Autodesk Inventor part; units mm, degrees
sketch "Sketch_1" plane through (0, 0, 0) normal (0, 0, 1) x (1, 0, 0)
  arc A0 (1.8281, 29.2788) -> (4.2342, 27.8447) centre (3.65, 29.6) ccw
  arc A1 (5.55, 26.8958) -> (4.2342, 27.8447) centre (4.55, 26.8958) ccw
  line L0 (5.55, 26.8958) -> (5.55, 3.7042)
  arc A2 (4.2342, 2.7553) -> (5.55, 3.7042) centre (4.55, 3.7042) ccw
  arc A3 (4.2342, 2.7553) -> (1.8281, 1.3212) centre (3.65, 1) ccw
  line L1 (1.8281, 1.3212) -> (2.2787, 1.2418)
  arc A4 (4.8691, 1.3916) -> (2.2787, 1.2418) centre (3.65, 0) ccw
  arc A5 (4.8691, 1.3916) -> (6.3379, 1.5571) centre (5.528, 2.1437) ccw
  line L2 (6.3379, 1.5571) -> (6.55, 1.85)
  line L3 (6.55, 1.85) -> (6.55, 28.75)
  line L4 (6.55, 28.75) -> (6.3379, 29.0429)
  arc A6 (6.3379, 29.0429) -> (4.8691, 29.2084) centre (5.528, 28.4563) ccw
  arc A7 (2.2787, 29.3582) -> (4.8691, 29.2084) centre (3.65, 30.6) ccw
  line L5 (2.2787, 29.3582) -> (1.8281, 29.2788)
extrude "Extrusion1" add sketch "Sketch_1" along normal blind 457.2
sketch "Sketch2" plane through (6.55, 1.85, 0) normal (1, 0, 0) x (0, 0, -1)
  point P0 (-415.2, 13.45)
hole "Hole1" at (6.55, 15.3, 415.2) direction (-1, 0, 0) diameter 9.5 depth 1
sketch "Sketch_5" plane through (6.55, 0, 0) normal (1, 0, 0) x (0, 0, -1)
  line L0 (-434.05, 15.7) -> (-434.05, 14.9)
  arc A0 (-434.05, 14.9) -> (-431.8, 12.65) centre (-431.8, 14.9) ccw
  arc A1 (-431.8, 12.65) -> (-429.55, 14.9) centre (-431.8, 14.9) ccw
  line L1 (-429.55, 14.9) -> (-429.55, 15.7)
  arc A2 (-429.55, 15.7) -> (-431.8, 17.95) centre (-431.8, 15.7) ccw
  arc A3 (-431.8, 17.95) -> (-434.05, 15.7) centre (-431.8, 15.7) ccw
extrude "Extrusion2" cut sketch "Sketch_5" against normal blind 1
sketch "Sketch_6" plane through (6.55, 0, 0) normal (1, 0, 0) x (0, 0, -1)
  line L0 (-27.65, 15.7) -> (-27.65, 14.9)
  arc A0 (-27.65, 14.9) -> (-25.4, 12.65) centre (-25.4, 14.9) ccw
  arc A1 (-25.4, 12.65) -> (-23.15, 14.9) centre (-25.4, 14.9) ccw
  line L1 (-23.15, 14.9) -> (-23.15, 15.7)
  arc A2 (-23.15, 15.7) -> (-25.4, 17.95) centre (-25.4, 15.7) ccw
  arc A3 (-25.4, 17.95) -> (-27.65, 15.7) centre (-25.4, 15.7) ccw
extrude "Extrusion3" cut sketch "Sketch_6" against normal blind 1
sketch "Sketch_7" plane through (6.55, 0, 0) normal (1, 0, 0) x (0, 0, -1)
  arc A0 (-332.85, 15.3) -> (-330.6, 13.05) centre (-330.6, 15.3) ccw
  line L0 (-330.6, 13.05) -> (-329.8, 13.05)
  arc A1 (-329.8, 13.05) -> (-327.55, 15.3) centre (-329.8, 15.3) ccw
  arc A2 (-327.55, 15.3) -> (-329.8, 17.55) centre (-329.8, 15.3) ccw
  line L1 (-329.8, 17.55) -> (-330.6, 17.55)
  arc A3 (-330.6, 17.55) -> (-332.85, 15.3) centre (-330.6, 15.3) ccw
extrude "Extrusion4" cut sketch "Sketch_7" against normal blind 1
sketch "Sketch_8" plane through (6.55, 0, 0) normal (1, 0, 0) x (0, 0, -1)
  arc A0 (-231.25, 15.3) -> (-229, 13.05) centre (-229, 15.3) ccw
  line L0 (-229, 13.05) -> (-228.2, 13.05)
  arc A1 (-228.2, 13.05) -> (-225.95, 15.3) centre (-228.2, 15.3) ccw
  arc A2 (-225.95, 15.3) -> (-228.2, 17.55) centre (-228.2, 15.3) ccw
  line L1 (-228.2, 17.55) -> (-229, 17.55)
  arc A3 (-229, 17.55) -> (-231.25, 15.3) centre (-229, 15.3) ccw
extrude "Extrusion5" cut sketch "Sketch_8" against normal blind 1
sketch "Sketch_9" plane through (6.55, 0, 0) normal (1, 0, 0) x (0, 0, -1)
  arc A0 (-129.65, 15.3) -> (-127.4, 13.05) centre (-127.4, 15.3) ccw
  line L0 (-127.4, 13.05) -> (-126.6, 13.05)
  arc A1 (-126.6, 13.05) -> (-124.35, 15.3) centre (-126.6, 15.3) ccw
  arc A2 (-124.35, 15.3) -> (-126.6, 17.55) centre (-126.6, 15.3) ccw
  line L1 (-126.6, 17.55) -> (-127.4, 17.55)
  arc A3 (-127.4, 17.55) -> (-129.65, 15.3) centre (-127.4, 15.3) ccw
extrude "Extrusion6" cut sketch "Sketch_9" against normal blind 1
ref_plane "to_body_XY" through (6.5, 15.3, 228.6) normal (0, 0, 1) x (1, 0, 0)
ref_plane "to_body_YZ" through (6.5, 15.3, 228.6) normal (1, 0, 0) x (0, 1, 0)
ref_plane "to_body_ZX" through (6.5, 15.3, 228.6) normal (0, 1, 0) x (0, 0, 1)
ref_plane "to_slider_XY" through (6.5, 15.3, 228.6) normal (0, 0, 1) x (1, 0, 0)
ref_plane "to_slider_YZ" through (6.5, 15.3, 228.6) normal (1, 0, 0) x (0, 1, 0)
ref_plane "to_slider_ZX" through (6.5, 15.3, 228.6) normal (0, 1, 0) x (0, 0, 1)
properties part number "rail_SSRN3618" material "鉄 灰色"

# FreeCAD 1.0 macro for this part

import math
import FreeCAD as App
import Part
import Sketcher

V = App.Vector
Q = App.Units.Quantity

doc = App.newDocument("Part")
body = doc.addObject("PartDesign::Body", "Body")

sketch1 = body.newObject("Sketcher::SketchObject", "Sketch")
sketch1.AttachmentSupport = (doc.getObject("XY_Plane"), [""])
sketch1.MapMode = "FlatFace"
sketch1.addGeometry([
    Part.LineSegment(V(2.28, 29.36, 0), V(1.83, 29.28, 0)),
    Part.ArcOfCircle(Part.Circle(V(3.65, 29.6, 0), V(0, 0, 1), 1.85), math.radians(-170), math.radians(-72)),
    Part.ArcOfCircle(Part.Circle(V(4.55, 26.9, 0), V(0, 0, 1), 1), math.radians(0), math.radians(108)),
    Part.LineSegment(V(5.55, 26.9, 0), V(5.55, 3.7, 0)),
    Part.ArcOfCircle(Part.Circle(V(4.55, 3.7, 0), V(0, 0, 1), 1), math.radians(-108), math.radians(0)),
    Part.ArcOfCircle(Part.Circle(V(3.65, 1, 0), V(0, 0, 1), 1.85), math.radians(72), math.radians(170)),
    Part.LineSegment(V(1.83, 1.32, 0), V(2.28, 1.24, 0)),
    Part.ArcOfCircle(Part.Circle(V(3.65, 0, 0), V(0, 0, 1), 1.85), math.radians(49), math.radians(138)),
    Part.ArcOfCircle(Part.Circle(V(5.53, 2.14, 0), V(0, 0, 1), 1), math.radians(-131), math.radians(-36)),
    Part.LineSegment(V(6.34, 1.56, 0), V(6.55, 1.85, 0)),
    Part.LineSegment(V(6.55, 1.85, 0), V(6.55, 28.75, 0)),
    Part.LineSegment(V(6.55, 28.75, 0), V(6.34, 29.04, 0)),
    Part.ArcOfCircle(Part.Circle(V(5.53, 28.46, 0), V(0, 0, 1), 1), math.radians(36), math.radians(131)),
    Part.ArcOfCircle(Part.Circle(V(3.65, 30.6, 0), V(0, 0, 1), 1.85), math.radians(-138), math.radians(-49)),
], False)
sketch1.addConstraint([
    Sketcher.Constraint("Coincident", 0, 2, 1, 1),
    Sketcher.Constraint("Tangent", 1, 2, 2, 2),
    Sketcher.Constraint("Tangent", 2, 1, 3, 1),
    Sketcher.Constraint("Tangent", 3, 2, 4, 2),
    Sketcher.Constraint("Tangent", 4, 1, 5, 1),
    Sketcher.Constraint("Coincident", 5, 2, 6, 1),
    Sketcher.Constraint("Coincident", 6, 2, 7, 2),
    Sketcher.Constraint("Tangent", 7, 1, 8, 1),
    Sketcher.Constraint("Tangent", 8, 2, 9, 1),
    Sketcher.Constraint("Coincident", 9, 2, 10, 1),
    Sketcher.Constraint("Coincident", 10, 2, 11, 1),
    Sketcher.Constraint("Tangent", 11, 2, 12, 1),
    Sketcher.Constraint("Tangent", 12, 2, 13, 2),
    Sketcher.Constraint("Coincident", 13, 1, 0, 1),
    Sketcher.Constraint("Vertical", 3),
    Sketcher.Constraint("Vertical", 10),
    Sketcher.Constraint("Equal", 2, 4),
    Sketcher.Constraint("Equal", 1, 5),
    Sketcher.Constraint("Equal", 5, 7),
    Sketcher.Constraint("Equal", 4, 8),
    Sketcher.Constraint("Equal", 8, 12),
    Sketcher.Constraint("Equal", 7, 13),
    Sketcher.Constraint("PointOnObject", 7, 3, -1),
    Sketcher.Constraint("Vertical", 1, 3, 5, 3),
    Sketcher.Constraint("Vertical", 5, 3, 7, 3),
    Sketcher.Constraint("Vertical", 8, 3, 12, 3),
    Sketcher.Constraint("Vertical", 7, 3, 13, 3),
    Sketcher.Constraint("Vertical", 0, 2, 5, 2),
    Sketcher.Constraint("Vertical", 8, 2, 11, 2),
    Sketcher.Constraint("Vertical", 6, 2, 13, 1),
    Sketcher.Constraint("Equal", 0, 6),
    Sketcher.Constraint("Radius", 2, 1.0),
    Sketcher.Constraint("Radius", 1, 1.85),
    Sketcher.Constraint("DistanceY", 10, 1, 10, 2, 26.9),
    Sketcher.Constraint("DistanceY", -1, 1, 5, 3, 1.0),
    Sketcher.Constraint("DistanceX", 3, 2, 9, 2, 1.0),
    Sketcher.Constraint("DistanceY", -1, 1, 1, 3, 29.6),
    Sketcher.Constraint("Angle", 9, Q("54.0903 deg")),
    Sketcher.Constraint("DistanceX", 1, 3, 2, 3, 0.9),
    Sketcher.Constraint("DistanceX", 0, 2, 12, 3, 3.7),
    Sketcher.Constraint("DistanceX", -1, 1, 1, 3, 3.65),
    Sketcher.Constraint("Distance", 0, 0.4575),
])
pad1 = body.newObject("PartDesign::Pad", "Pad")
pad1.Profile = sketch1
pad1.Length = 457.2

sketch2 = body.newObject("Sketcher::SketchObject", "Sketch001")
sketch2.AttachmentSupport = (doc.getObject("YZ_Plane"), [""])
sketch2.MapMode = "FlatFace"
sketch2.AttachmentOffset = App.Placement(V(0, 0, 6.55), App.Rotation())
sketch2.addGeometry(Part.Circle(V(15.3, 415.2, 0), V(0, 0, 1), 4.8), False)
sketch2.addConstraint([
    Sketcher.Constraint("Diameter", 0, 9.5),
    Sketcher.Constraint("DistanceX", -1, 1, 0, 3, 15.3),
    Sketcher.Constraint("DistanceY", -1, 1, 0, 3, 415.2),
])
doc.recompute()
hole = body.newObject("PartDesign::Hole", "Hole")
hole.Profile = sketch2
hole.ThreadType = "None"
hole.Diameter = 9.5
hole.DepthType = "Dimension"
hole.Depth = 1
hole.DrillPoint = "Flat"

sketch3 = body.newObject("Sketcher::SketchObject", "Sketch002")
sketch3.AttachmentSupport = (doc.getObject("YZ_Plane"), [""])
sketch3.MapMode = "FlatFace"
sketch3.AttachmentOffset = App.Placement(V(0, 0, 6.55), App.Rotation())
sketch3.addGeometry([
    Part.ArcOfCircle(Part.Circle(V(15.7, 431.8, 0), V(0, 0, 1), 2.2), math.radians(-90), math.radians(90)),
    Part.LineSegment(V(15.7, 434.1, 0), V(14.9, 434.1, 0)),
    Part.ArcOfCircle(Part.Circle(V(14.9, 431.8, 0), V(0, 0, 1), 2.2), math.radians(90), math.radians(270)),
    Part.LineSegment(V(14.9, 429.6, 0), V(15.7, 429.6, 0)),
], False)
sketch3.addConstraint([
    Sketcher.Constraint("Tangent", 0, 2, 1, 1),
    Sketcher.Constraint("Tangent", 1, 2, 2, 1),
    Sketcher.Constraint("Tangent", 2, 2, 3, 1),
    Sketcher.Constraint("Tangent", 3, 2, 0, 1),
    Sketcher.Constraint("Horizontal", 1),
    Sketcher.Constraint("Horizontal", 3),
    Sketcher.Constraint("Radius", 0, 2.25),
    Sketcher.Constraint("DistanceX", 1, 2, 1, 1, 0.8),
    Sketcher.Constraint("DistanceX", -1, 1, 0, 3, 15.7),
    Sketcher.Constraint("DistanceY", -1, 1, 0, 3, 431.8),
])
pocket1 = body.newObject("PartDesign::Pocket", "Pocket")
pocket1.Profile = sketch3
pocket1.Length = 1

sketch4 = body.newObject("Sketcher::SketchObject", "Sketch003")
sketch4.AttachmentSupport = (doc.getObject("YZ_Plane"), [""])
sketch4.MapMode = "FlatFace"
sketch4.AttachmentOffset = App.Placement(V(0, 0, 6.55), App.Rotation())
sketch4.addGeometry([
    Part.ArcOfCircle(Part.Circle(V(15.7, 25.4, 0), V(0, 0, 1), 2.2), math.radians(-90), math.radians(90)),
    Part.LineSegment(V(15.7, 27.6, 0), V(14.9, 27.6, 0)),
    Part.ArcOfCircle(Part.Circle(V(14.9, 25.4, 0), V(0, 0, 1), 2.2), math.radians(90), math.radians(270)),
    Part.LineSegment(V(14.9, 23.1, 0), V(15.7, 23.1, 0)),
], False)
sketch4.addConstraint([
    Sketcher.Constraint("Tangent", 0, 2, 1, 1),
    Sketcher.Constraint("Tangent", 1, 2, 2, 1),
    Sketcher.Constraint("Tangent", 2, 2, 3, 1),
    Sketcher.Constraint("Tangent", 3, 2, 0, 1),
    Sketcher.Constraint("Horizontal", 1),
    Sketcher.Constraint("Horizontal", 3),
    Sketcher.Constraint("Radius", 0, 2.25),
    Sketcher.Constraint("DistanceX", 1, 2, 1, 1, 0.8),
    Sketcher.Constraint("DistanceX", -1, 1, 0, 3, 15.7),
    Sketcher.Constraint("DistanceY", -1, 1, 0, 3, 25.4),
])
pocket2 = body.newObject("PartDesign::Pocket", "Pocket001")
pocket2.Profile = sketch4
pocket2.Length = 1

sketch5 = body.newObject("Sketcher::SketchObject", "Sketch004")
sketch5.AttachmentSupport = (doc.getObject("YZ_Plane"), [""])
sketch5.MapMode = "FlatFace"
sketch5.AttachmentOffset = App.Placement(V(0, 0, 6.55), App.Rotation())
sketch5.addGeometry([
    Part.ArcOfCircle(Part.Circle(V(15.3, 330.6, 0), V(0, 0, 1), 2.2), math.radians(0), math.radians(180)),
    Part.LineSegment(V(13.1, 330.6, 0), V(13.1, 329.8, 0)),
    Part.ArcOfCircle(Part.Circle(V(15.3, 329.8, 0), V(0, 0, 1), 2.2), math.radians(180), math.radians(360)),
    Part.LineSegment(V(17.6, 329.8, 0), V(17.6, 330.6, 0)),
], False)
sketch5.addConstraint([
    Sketcher.Constraint("Tangent", 0, 2, 1, 1),
    Sketcher.Constraint("Tangent", 1, 2, 2, 1),
    Sketcher.Constraint("Tangent", 2, 2, 3, 1),
    Sketcher.Constraint("Tangent", 3, 2, 0, 1),
    Sketcher.Constraint("Vertical", 1),
    Sketcher.Constraint("Vertical", 3),
    Sketcher.Constraint("Radius", 0, 2.25),
    Sketcher.Constraint("DistanceY", 1, 2, 1, 1, 0.8),
    Sketcher.Constraint("DistanceX", -1, 1, 0, 3, 15.3),
    Sketcher.Constraint("DistanceY", -1, 1, 0, 3, 330.6),
])
pocket3 = body.newObject("PartDesign::Pocket", "Pocket002")
pocket3.Profile = sketch5
pocket3.Length = 1

sketch6 = body.newObject("Sketcher::SketchObject", "Sketch005")
sketch6.AttachmentSupport = (doc.getObject("YZ_Plane"), [""])
sketch6.MapMode = "FlatFace"
sketch6.AttachmentOffset = App.Placement(V(0, 0, 6.55), App.Rotation())
sketch6.addGeometry([
    Part.ArcOfCircle(Part.Circle(V(15.3, 229, 0), V(0, 0, 1), 2.2), math.radians(0), math.radians(180)),
    Part.LineSegment(V(13.1, 229, 0), V(13.1, 228.2, 0)),
    Part.ArcOfCircle(Part.Circle(V(15.3, 228.2, 0), V(0, 0, 1), 2.2), math.radians(180), math.radians(360)),
    Part.LineSegment(V(17.6, 228.2, 0), V(17.6, 229, 0)),
], False)
sketch6.addConstraint([
    Sketcher.Constraint("Tangent", 0, 2, 1, 1),
    Sketcher.Constraint("Tangent", 1, 2, 2, 1),
    Sketcher.Constraint("Tangent", 2, 2, 3, 1),
    Sketcher.Constraint("Tangent", 3, 2, 0, 1),
    Sketcher.Constraint("Vertical", 1),
    Sketcher.Constraint("Vertical", 3),
    Sketcher.Constraint("Radius", 0, 2.25),
    Sketcher.Constraint("DistanceY", 1, 2, 1, 1, 0.8),
    Sketcher.Constraint("DistanceY", -1, 1, 0, 3, 229.0),
    Sketcher.Constraint("DistanceX", -1, 1, 0, 3, 15.3),
])
pocket4 = body.newObject("PartDesign::Pocket", "Pocket003")
pocket4.Profile = sketch6
pocket4.Length = 1

sketch7 = body.newObject("Sketcher::SketchObject", "Sketch006")
sketch7.AttachmentSupport = (doc.getObject("YZ_Plane"), [""])
sketch7.MapMode = "FlatFace"
sketch7.AttachmentOffset = App.Placement(V(0, 0, 6.55), App.Rotation())
sketch7.addGeometry([
    Part.ArcOfCircle(Part.Circle(V(15.3, 127.4, 0), V(0, 0, 1), 2.2), math.radians(0), math.radians(180)),
    Part.LineSegment(V(13.1, 127.4, 0), V(13.1, 126.6, 0)),
    Part.ArcOfCircle(Part.Circle(V(15.3, 126.6, 0), V(0, 0, 1), 2.2), math.radians(180), math.radians(360)),
    Part.LineSegment(V(17.6, 126.6, 0), V(17.6, 127.4, 0)),
], False)
sketch7.addConstraint([
    Sketcher.Constraint("Tangent", 0, 2, 1, 1),
    Sketcher.Constraint("Tangent", 1, 2, 2, 1),
    Sketcher.Constraint("Tangent", 2, 2, 3, 1),
    Sketcher.Constraint("Tangent", 3, 2, 0, 1),
    Sketcher.Constraint("Vertical", 1),
    Sketcher.Constraint("Vertical", 3),
    Sketcher.Constraint("Radius", 0, 2.25),
    Sketcher.Constraint("DistanceY", 1, 2, 1, 1, 0.8),
    Sketcher.Constraint("DistanceX", -1, 1, 0, 3, 15.3),
    Sketcher.Constraint("DistanceY", -1, 1, 0, 3, 127.4),
])
pocket5 = body.newObject("PartDesign::Pocket", "Pocket004")
pocket5.Profile = sketch7
pocket5.Length = 1

doc.recompute()
